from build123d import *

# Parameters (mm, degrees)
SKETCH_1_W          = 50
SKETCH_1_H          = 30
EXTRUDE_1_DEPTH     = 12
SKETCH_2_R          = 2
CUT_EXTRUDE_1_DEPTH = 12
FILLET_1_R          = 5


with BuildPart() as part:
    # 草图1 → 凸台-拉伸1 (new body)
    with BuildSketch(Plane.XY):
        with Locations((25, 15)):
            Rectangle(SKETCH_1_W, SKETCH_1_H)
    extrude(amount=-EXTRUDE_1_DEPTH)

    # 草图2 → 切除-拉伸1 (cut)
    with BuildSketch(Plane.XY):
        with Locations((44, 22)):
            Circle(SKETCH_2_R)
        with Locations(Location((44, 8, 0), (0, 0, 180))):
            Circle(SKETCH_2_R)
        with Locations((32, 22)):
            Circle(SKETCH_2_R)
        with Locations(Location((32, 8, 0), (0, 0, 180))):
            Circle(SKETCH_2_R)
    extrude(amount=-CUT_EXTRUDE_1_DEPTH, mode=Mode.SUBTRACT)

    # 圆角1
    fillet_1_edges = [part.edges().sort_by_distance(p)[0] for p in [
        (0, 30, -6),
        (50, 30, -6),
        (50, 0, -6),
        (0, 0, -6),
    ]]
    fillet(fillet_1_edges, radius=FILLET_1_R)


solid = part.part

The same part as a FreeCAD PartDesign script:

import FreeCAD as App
import Part
import Sketcher

V = App.Vector
Q = App.Units.Quantity


def edges_at(feature, points):
    """Names of the edges that pass closest to the given points."""
    edges = feature.Shape.Edges
    near = lambda p: min(range(len(edges)), key=lambda i: edges[i].distToShape(Part.Vertex(*p))[0])
    return sorted({f"Edge{near(p) + 1}" for p in points})


def add_polygon(sketch, points):
    """Adds a closed chain of lines whose ends are joined by coincident constraints."""
    first, n = sketch.GeometryCount, len(points)
    for a, b in zip(points, points[1:] + points[:1]):
        sketch.addGeometry(Part.LineSegment(App.Vector(*a, 0), App.Vector(*b, 0)), False)
    for i in range(n):
        sketch.addConstraint(Sketcher.Constraint("Coincident", first + i, 2, first + (i + 1) % n, 1))

doc = App.newDocument("Part")
body = doc.addObject("PartDesign::Body", "Body")

sketch1 = doc.addObject("Sketcher::SketchObject", "Sketch")
body.addObject(sketch1)
sketch1.AttachmentSupport = (doc.XY_Plane, [""])
sketch1.MapMode = "FlatFace"
add_polygon(sketch1, [(0, 30), (0, 0), (50, 0), (50, 30)])
sketch1.addConstraint(Sketcher.Constraint("Vertical", 0))
sketch1.addConstraint(Sketcher.Constraint("Horizontal", 1))
sketch1.addConstraint(Sketcher.Constraint("Vertical", 2))
sketch1.addConstraint(Sketcher.Constraint("Horizontal", 3))
sketch1.addConstraint(Sketcher.Constraint("Coincident", 0, 2, -1, 1))
sketch1.addConstraint(Sketcher.Constraint("DistanceX", 1, 1, 1, 2, Q("50 mm")))
sketch1.addConstraint(Sketcher.Constraint("DistanceY", 0, 2, 0, 1, Q("30 mm")))
pad1 = doc.addObject("PartDesign::Pad", "Pad")
body.addObject(pad1)
pad1.Profile = sketch1
pad1.Length = 12
pad1.Reversed = True

sketch2 = doc.addObject("Sketcher::SketchObject", "Sketch001")
body.addObject(sketch2)
sketch2.AttachmentSupport = (doc.XY_Plane, [""])
sketch2.MapMode = "FlatFace"
sketch2.addGeometry(Part.Circle(V(44, 22, 0), V(0, 0, 1), 2), False)
sketch2.addGeometry(Part.Circle(V(44, 8, 0), V(0, 0, 1), 2), False)
sketch2.addGeometry(Part.Circle(V(32, 22, 0), V(0, 0, 1), 2), False)
sketch2.addGeometry(Part.Circle(V(32, 8, 0), V(0, 0, 1), 2), False)
sketch2.addConstraint(Sketcher.Constraint("Equal", 0, 1))
sketch2.addConstraint(Sketcher.Constraint("Equal", 1, 2))
sketch2.addConstraint(Sketcher.Constraint("Equal", 2, 3))
sketch2.addConstraint(Sketcher.Constraint("Horizontal", 0, 3, 2, 3))
sketch2.addConstraint(Sketcher.Constraint("Horizontal", 1, 3, 3, 3))
sketch2.addConstraint(Sketcher.Constraint("Vertical", 0, 3, 1, 3))
sketch2.addConstraint(Sketcher.Constraint("Vertical", 2, 3, 3, 3))
sketch2.addConstraint(Sketcher.Constraint("Diameter", 0, Q("4 mm")))
sketch2.addConstraint(Sketcher.Constraint("DistanceX", -1, 1, 0, 3, Q("44 mm")))
sketch2.addConstraint(Sketcher.Constraint("DistanceY", -1, 1, 0, 3, Q("22 mm")))
sketch2.addConstraint(Sketcher.Constraint("DistanceY", -1, 1, 1, 3, Q("8 mm")))
sketch2.addConstraint(Sketcher.Constraint("DistanceX", -1, 1, 2, 3, Q("32 mm")))
pocket1 = doc.addObject("PartDesign::Pocket", "Pocket")
body.addObject(pocket1)
pocket1.Profile = sketch2
pocket1.Length = 12
doc.recompute()

fillet = doc.addObject("PartDesign::Fillet", "Fillet")
body.addObject(fillet)
fillet.Base = (pocket1, edges_at(pocket1, [
    (0, 30, -6),
    (50, 30, -6),
    (50, 0, -6),
    (0, 0, -6),
]))
fillet.Radius = 5

doc.recompute()
